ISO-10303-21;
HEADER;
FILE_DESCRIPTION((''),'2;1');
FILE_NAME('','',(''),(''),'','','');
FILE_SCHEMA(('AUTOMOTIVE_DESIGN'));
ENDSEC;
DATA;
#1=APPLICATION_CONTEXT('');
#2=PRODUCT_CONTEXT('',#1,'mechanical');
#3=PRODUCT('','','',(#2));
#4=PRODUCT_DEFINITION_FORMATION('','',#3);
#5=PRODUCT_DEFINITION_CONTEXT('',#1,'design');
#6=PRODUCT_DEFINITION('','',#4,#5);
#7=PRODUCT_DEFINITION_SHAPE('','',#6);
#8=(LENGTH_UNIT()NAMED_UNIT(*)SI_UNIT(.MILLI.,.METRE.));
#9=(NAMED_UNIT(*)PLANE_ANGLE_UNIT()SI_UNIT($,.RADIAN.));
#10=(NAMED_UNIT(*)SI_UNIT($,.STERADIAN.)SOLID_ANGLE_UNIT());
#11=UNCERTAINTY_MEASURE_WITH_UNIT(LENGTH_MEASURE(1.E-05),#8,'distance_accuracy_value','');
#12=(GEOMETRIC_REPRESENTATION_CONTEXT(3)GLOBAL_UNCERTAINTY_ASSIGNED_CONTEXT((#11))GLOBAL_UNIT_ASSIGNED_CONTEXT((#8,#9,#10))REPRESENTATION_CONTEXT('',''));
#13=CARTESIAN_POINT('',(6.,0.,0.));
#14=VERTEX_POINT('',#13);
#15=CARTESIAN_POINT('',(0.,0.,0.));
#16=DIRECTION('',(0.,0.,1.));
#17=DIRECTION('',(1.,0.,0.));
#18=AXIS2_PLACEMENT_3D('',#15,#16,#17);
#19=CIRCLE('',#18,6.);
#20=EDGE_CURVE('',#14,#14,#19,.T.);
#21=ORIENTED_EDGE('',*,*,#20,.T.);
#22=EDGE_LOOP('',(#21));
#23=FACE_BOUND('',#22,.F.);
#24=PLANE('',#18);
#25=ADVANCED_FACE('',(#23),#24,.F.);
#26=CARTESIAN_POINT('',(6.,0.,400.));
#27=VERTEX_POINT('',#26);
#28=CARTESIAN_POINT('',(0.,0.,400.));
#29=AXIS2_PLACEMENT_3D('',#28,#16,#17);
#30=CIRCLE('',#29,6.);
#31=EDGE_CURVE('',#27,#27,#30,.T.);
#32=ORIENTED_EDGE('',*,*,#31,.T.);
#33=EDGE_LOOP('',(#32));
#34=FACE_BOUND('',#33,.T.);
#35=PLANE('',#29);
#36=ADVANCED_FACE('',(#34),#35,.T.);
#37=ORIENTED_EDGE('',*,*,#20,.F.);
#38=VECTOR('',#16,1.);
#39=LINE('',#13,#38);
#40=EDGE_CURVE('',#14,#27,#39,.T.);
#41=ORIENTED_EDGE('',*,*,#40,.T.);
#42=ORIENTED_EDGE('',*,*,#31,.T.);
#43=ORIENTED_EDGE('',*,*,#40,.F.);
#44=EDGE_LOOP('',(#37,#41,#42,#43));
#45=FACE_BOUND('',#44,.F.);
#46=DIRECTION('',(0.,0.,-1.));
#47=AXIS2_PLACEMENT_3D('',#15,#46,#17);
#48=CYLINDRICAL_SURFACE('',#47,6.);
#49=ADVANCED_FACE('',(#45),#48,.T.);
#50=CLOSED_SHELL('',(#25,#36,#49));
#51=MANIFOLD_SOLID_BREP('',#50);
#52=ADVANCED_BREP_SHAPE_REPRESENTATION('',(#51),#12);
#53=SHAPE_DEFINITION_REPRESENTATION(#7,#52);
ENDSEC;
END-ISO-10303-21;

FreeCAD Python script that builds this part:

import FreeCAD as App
import Part
import Sketcher

V = App.Vector
Q = App.Units.Quantity

doc = App.newDocument("Part")
params = doc.addObject("Spreadsheet::Sheet", "Params")
for row, (alias, value) in enumerate([
    ("sketch1_diameter", "12 mm"),
    ("pad1_length", "400 mm"),
], start=1):
    params.set(f"A{row}", alias)
    params.set(f"B{row}", "=" + value)
    params.setAlias(f"B{row}", alias)

body = doc.addObject("PartDesign::Body", "Body")

# Sketch on XY plane
sketch1 = body.newObject("Sketcher::SketchObject", "Sketch")
sketch1.AttachmentSupport = (doc.getObject("XY_Plane"), [""])
sketch1.MapMode = "FlatFace"
sketch1.addGeometry(Part.Circle(V(0, 0, 0), V(0, 0, 1), 6), False)
sketch1.addConstraint(Sketcher.Constraint("Coincident", 0, 3, -1, 1))
sketch1.addConstraint(Sketcher.Constraint("Diameter", 0, Q("12 mm")))
sketch1.setExpression("Constraints[1]", "Params.sketch1_diameter")
pad1 = body.newObject("PartDesign::Pad", "Pad")
pad1.Profile = sketch1
pad1.setExpression("Length", "Params.pad1_length")

doc.recompute()
